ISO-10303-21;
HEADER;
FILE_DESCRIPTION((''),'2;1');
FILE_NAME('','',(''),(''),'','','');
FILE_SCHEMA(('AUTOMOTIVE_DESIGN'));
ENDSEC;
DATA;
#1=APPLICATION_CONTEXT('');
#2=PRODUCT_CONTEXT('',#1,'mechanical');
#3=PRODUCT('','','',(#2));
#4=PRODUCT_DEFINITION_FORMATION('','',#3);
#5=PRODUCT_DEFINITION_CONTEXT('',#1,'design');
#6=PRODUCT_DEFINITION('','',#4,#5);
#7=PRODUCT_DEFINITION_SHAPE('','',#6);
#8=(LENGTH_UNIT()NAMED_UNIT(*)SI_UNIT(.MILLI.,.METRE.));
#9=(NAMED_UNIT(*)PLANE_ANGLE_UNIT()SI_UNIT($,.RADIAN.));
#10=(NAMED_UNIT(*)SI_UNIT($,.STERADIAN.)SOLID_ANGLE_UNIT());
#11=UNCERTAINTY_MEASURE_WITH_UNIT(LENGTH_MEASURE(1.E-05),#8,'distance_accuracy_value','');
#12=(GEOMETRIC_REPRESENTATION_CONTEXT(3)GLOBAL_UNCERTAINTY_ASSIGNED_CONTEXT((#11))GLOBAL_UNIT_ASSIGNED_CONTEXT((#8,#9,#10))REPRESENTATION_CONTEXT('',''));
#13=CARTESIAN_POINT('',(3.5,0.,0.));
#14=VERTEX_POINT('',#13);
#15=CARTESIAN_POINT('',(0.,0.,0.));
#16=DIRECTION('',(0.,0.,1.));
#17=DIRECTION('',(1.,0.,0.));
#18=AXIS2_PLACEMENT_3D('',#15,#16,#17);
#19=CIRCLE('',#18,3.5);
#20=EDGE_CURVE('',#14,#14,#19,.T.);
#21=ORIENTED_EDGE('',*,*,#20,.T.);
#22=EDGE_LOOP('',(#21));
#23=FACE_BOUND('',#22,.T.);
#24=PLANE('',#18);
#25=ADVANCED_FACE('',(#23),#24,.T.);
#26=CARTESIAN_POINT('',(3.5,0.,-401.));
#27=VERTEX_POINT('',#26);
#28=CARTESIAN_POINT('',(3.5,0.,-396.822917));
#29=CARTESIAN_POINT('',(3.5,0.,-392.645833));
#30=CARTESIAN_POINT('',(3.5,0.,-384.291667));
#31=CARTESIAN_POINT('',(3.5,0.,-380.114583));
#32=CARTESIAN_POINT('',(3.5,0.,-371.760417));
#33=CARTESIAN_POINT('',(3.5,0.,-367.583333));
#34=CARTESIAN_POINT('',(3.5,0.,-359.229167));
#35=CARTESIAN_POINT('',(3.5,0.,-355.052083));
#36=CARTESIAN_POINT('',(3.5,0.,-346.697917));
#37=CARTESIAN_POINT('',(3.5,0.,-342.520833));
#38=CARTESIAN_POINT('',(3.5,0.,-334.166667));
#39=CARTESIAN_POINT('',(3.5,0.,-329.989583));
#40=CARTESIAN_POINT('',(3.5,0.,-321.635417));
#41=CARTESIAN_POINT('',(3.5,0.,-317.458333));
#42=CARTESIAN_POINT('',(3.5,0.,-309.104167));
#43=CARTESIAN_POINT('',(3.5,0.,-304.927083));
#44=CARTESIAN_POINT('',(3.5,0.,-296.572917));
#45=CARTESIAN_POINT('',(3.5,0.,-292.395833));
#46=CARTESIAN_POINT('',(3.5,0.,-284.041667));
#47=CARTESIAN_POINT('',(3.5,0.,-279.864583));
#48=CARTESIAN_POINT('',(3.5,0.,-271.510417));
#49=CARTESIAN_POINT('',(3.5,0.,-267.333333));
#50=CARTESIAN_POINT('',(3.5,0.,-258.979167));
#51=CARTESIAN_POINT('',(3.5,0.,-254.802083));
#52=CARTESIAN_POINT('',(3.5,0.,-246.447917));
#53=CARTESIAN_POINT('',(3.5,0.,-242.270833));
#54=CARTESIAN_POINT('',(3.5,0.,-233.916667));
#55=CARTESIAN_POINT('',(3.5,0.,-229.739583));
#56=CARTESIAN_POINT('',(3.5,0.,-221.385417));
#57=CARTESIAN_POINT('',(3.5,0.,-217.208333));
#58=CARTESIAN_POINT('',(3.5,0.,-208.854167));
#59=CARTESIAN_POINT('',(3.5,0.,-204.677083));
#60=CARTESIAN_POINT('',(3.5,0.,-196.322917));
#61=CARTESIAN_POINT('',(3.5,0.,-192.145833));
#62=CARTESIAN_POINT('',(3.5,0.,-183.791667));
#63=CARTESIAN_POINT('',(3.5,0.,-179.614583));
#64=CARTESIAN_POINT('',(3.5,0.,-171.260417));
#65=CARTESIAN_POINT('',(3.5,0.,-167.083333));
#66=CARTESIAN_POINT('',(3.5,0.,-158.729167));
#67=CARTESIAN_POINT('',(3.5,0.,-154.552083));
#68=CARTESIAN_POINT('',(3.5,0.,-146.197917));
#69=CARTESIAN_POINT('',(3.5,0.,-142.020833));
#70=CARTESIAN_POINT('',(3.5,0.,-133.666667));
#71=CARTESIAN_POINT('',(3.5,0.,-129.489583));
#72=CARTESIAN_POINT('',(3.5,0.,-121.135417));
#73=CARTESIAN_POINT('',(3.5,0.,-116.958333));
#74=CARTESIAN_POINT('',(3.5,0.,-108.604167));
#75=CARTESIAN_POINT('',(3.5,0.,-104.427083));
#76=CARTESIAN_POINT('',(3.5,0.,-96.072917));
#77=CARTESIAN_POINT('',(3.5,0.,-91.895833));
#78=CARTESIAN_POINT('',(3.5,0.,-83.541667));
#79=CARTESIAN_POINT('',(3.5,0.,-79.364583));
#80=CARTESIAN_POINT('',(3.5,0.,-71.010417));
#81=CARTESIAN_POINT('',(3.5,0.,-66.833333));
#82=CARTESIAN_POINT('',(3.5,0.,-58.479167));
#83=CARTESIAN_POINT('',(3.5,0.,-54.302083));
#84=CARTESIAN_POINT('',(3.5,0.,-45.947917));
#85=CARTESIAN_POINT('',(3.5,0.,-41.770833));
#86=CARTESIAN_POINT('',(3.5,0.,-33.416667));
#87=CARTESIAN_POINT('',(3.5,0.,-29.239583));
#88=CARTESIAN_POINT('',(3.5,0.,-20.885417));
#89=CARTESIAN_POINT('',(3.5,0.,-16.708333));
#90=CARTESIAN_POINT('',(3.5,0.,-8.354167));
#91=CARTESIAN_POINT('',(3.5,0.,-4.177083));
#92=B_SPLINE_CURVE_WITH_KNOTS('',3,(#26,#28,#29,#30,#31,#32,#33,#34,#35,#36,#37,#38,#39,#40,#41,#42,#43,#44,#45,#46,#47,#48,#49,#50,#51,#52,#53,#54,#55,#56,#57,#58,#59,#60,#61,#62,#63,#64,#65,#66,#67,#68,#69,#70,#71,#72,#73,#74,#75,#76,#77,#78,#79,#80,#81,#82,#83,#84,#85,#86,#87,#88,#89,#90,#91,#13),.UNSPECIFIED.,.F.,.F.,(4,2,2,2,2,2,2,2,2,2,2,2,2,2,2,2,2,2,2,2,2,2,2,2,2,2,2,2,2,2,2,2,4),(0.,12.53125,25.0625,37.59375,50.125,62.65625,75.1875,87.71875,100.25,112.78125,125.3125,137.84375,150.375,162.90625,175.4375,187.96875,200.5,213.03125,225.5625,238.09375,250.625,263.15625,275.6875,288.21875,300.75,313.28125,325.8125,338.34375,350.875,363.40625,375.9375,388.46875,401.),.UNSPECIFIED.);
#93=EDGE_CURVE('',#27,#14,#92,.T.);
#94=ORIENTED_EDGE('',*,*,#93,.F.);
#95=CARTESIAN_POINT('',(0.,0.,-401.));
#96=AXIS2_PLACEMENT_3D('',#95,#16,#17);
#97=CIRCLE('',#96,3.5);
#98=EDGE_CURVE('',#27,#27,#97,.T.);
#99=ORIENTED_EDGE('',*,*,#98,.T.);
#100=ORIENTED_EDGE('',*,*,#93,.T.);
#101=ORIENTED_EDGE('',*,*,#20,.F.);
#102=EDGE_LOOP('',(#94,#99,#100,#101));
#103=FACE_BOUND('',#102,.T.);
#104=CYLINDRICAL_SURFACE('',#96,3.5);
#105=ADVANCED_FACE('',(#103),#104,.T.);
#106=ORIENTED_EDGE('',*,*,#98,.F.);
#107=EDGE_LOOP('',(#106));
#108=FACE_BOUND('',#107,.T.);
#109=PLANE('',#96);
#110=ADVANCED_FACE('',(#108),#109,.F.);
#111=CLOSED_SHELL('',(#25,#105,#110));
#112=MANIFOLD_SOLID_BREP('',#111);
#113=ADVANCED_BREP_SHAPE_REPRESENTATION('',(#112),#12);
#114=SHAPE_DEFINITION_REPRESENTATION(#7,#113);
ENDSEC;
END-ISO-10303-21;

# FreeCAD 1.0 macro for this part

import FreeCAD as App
import Part
import Sketcher
from FreeCAD import Vector

doc = App.newDocument("Part")
body = doc.addObject("PartDesign::Body", "Body")

sketch1 = body.newObject("Sketcher::SketchObject", "Sketch")
sketch1.AttachmentSupport = (doc.getObject("XY_Plane"), [""])
sketch1.MapMode = "FlatFace"
sketch1.addGeometry(Part.Circle(Vector(0, 0, 0), Vector(0, 0, 1), 3.5), False)
sketch1.addConstraint([
    Sketcher.Constraint("Coincident", 0, 3, -1, 1),
    Sketcher.Constraint("Diameter", 0, 7.0),
])
pad1 = body.newObject("PartDesign::Pad", "Pad")
pad1.Profile = sketch1
pad1.Length = 401
pad1.Reversed = True

doc.recompute()
